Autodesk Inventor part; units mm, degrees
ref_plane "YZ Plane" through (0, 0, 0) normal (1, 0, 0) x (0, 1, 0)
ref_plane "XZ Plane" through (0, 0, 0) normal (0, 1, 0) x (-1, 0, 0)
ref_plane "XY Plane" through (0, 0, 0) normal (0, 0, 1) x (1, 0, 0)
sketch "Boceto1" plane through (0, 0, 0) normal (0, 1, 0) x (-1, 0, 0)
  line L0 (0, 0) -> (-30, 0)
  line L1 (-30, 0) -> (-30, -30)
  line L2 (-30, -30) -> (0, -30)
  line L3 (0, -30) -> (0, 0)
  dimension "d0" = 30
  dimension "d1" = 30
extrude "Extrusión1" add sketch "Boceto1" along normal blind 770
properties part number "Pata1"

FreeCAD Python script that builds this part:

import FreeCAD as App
import Part
import Sketcher

V = App.Vector


def add_polygon(sketch, points):
    """Adds a closed chain of lines whose ends are joined by coincident constraints."""
    first, n = sketch.GeometryCount, len(points)
    for a, b in zip(points, points[1:] + points[:1]):
        sketch.addGeometry(Part.LineSegment(App.Vector(*a, 0), App.Vector(*b, 0)), False)
    for i in range(n):
        sketch.addConstraint(Sketcher.Constraint("Coincident", first + i, 2, first + (i + 1) % n, 1))

doc = App.newDocument("Part")
params = doc.addObject("Spreadsheet::Sheet", "Params")
for row, (alias, value) in enumerate([
    ("sketch1_width", "30 mm"),
    ("pad1_length", "770 mm"),
], start=1):
    params.set(f"A{row}", alias)
    params.set(f"B{row}", "=" + value)
    params.setAlias(f"B{row}", alias)

body = doc.addObject("PartDesign::Body", "Body")

sketch1 = body.newObject("Sketcher::SketchObject", "Sketch")
sketch1.AttachmentSupport = (doc.getObject("XZ_Plane"), [""])
sketch1.MapMode = "FlatFace"
add_polygon(sketch1, [(0, -30), (0, 0), (30, 0), (30, -30)])
sketch1.addConstraint([
    Sketcher.Constraint("Vertical", 0),
    Sketcher.Constraint("Horizontal", 1),
    Sketcher.Constraint("Vertical", 2),
    Sketcher.Constraint("Horizontal", 3),
    Sketcher.Constraint("Coincident", 0, 2, -1, 1),
    Sketcher.Constraint("Equal", 3, 0),
    Sketcher.Constraint("DistanceX", 1, 1, 1, 2, 30.0),
])
sketch1.setExpression("Constraints[10]", "Params.sketch1_width")
pad1 = body.newObject("PartDesign::Pad", "Pad")
pad1.Profile = sketch1
pad1.setExpression("Length", "Params.pad1_length")
pad1.Reversed = True

doc.recompute()
